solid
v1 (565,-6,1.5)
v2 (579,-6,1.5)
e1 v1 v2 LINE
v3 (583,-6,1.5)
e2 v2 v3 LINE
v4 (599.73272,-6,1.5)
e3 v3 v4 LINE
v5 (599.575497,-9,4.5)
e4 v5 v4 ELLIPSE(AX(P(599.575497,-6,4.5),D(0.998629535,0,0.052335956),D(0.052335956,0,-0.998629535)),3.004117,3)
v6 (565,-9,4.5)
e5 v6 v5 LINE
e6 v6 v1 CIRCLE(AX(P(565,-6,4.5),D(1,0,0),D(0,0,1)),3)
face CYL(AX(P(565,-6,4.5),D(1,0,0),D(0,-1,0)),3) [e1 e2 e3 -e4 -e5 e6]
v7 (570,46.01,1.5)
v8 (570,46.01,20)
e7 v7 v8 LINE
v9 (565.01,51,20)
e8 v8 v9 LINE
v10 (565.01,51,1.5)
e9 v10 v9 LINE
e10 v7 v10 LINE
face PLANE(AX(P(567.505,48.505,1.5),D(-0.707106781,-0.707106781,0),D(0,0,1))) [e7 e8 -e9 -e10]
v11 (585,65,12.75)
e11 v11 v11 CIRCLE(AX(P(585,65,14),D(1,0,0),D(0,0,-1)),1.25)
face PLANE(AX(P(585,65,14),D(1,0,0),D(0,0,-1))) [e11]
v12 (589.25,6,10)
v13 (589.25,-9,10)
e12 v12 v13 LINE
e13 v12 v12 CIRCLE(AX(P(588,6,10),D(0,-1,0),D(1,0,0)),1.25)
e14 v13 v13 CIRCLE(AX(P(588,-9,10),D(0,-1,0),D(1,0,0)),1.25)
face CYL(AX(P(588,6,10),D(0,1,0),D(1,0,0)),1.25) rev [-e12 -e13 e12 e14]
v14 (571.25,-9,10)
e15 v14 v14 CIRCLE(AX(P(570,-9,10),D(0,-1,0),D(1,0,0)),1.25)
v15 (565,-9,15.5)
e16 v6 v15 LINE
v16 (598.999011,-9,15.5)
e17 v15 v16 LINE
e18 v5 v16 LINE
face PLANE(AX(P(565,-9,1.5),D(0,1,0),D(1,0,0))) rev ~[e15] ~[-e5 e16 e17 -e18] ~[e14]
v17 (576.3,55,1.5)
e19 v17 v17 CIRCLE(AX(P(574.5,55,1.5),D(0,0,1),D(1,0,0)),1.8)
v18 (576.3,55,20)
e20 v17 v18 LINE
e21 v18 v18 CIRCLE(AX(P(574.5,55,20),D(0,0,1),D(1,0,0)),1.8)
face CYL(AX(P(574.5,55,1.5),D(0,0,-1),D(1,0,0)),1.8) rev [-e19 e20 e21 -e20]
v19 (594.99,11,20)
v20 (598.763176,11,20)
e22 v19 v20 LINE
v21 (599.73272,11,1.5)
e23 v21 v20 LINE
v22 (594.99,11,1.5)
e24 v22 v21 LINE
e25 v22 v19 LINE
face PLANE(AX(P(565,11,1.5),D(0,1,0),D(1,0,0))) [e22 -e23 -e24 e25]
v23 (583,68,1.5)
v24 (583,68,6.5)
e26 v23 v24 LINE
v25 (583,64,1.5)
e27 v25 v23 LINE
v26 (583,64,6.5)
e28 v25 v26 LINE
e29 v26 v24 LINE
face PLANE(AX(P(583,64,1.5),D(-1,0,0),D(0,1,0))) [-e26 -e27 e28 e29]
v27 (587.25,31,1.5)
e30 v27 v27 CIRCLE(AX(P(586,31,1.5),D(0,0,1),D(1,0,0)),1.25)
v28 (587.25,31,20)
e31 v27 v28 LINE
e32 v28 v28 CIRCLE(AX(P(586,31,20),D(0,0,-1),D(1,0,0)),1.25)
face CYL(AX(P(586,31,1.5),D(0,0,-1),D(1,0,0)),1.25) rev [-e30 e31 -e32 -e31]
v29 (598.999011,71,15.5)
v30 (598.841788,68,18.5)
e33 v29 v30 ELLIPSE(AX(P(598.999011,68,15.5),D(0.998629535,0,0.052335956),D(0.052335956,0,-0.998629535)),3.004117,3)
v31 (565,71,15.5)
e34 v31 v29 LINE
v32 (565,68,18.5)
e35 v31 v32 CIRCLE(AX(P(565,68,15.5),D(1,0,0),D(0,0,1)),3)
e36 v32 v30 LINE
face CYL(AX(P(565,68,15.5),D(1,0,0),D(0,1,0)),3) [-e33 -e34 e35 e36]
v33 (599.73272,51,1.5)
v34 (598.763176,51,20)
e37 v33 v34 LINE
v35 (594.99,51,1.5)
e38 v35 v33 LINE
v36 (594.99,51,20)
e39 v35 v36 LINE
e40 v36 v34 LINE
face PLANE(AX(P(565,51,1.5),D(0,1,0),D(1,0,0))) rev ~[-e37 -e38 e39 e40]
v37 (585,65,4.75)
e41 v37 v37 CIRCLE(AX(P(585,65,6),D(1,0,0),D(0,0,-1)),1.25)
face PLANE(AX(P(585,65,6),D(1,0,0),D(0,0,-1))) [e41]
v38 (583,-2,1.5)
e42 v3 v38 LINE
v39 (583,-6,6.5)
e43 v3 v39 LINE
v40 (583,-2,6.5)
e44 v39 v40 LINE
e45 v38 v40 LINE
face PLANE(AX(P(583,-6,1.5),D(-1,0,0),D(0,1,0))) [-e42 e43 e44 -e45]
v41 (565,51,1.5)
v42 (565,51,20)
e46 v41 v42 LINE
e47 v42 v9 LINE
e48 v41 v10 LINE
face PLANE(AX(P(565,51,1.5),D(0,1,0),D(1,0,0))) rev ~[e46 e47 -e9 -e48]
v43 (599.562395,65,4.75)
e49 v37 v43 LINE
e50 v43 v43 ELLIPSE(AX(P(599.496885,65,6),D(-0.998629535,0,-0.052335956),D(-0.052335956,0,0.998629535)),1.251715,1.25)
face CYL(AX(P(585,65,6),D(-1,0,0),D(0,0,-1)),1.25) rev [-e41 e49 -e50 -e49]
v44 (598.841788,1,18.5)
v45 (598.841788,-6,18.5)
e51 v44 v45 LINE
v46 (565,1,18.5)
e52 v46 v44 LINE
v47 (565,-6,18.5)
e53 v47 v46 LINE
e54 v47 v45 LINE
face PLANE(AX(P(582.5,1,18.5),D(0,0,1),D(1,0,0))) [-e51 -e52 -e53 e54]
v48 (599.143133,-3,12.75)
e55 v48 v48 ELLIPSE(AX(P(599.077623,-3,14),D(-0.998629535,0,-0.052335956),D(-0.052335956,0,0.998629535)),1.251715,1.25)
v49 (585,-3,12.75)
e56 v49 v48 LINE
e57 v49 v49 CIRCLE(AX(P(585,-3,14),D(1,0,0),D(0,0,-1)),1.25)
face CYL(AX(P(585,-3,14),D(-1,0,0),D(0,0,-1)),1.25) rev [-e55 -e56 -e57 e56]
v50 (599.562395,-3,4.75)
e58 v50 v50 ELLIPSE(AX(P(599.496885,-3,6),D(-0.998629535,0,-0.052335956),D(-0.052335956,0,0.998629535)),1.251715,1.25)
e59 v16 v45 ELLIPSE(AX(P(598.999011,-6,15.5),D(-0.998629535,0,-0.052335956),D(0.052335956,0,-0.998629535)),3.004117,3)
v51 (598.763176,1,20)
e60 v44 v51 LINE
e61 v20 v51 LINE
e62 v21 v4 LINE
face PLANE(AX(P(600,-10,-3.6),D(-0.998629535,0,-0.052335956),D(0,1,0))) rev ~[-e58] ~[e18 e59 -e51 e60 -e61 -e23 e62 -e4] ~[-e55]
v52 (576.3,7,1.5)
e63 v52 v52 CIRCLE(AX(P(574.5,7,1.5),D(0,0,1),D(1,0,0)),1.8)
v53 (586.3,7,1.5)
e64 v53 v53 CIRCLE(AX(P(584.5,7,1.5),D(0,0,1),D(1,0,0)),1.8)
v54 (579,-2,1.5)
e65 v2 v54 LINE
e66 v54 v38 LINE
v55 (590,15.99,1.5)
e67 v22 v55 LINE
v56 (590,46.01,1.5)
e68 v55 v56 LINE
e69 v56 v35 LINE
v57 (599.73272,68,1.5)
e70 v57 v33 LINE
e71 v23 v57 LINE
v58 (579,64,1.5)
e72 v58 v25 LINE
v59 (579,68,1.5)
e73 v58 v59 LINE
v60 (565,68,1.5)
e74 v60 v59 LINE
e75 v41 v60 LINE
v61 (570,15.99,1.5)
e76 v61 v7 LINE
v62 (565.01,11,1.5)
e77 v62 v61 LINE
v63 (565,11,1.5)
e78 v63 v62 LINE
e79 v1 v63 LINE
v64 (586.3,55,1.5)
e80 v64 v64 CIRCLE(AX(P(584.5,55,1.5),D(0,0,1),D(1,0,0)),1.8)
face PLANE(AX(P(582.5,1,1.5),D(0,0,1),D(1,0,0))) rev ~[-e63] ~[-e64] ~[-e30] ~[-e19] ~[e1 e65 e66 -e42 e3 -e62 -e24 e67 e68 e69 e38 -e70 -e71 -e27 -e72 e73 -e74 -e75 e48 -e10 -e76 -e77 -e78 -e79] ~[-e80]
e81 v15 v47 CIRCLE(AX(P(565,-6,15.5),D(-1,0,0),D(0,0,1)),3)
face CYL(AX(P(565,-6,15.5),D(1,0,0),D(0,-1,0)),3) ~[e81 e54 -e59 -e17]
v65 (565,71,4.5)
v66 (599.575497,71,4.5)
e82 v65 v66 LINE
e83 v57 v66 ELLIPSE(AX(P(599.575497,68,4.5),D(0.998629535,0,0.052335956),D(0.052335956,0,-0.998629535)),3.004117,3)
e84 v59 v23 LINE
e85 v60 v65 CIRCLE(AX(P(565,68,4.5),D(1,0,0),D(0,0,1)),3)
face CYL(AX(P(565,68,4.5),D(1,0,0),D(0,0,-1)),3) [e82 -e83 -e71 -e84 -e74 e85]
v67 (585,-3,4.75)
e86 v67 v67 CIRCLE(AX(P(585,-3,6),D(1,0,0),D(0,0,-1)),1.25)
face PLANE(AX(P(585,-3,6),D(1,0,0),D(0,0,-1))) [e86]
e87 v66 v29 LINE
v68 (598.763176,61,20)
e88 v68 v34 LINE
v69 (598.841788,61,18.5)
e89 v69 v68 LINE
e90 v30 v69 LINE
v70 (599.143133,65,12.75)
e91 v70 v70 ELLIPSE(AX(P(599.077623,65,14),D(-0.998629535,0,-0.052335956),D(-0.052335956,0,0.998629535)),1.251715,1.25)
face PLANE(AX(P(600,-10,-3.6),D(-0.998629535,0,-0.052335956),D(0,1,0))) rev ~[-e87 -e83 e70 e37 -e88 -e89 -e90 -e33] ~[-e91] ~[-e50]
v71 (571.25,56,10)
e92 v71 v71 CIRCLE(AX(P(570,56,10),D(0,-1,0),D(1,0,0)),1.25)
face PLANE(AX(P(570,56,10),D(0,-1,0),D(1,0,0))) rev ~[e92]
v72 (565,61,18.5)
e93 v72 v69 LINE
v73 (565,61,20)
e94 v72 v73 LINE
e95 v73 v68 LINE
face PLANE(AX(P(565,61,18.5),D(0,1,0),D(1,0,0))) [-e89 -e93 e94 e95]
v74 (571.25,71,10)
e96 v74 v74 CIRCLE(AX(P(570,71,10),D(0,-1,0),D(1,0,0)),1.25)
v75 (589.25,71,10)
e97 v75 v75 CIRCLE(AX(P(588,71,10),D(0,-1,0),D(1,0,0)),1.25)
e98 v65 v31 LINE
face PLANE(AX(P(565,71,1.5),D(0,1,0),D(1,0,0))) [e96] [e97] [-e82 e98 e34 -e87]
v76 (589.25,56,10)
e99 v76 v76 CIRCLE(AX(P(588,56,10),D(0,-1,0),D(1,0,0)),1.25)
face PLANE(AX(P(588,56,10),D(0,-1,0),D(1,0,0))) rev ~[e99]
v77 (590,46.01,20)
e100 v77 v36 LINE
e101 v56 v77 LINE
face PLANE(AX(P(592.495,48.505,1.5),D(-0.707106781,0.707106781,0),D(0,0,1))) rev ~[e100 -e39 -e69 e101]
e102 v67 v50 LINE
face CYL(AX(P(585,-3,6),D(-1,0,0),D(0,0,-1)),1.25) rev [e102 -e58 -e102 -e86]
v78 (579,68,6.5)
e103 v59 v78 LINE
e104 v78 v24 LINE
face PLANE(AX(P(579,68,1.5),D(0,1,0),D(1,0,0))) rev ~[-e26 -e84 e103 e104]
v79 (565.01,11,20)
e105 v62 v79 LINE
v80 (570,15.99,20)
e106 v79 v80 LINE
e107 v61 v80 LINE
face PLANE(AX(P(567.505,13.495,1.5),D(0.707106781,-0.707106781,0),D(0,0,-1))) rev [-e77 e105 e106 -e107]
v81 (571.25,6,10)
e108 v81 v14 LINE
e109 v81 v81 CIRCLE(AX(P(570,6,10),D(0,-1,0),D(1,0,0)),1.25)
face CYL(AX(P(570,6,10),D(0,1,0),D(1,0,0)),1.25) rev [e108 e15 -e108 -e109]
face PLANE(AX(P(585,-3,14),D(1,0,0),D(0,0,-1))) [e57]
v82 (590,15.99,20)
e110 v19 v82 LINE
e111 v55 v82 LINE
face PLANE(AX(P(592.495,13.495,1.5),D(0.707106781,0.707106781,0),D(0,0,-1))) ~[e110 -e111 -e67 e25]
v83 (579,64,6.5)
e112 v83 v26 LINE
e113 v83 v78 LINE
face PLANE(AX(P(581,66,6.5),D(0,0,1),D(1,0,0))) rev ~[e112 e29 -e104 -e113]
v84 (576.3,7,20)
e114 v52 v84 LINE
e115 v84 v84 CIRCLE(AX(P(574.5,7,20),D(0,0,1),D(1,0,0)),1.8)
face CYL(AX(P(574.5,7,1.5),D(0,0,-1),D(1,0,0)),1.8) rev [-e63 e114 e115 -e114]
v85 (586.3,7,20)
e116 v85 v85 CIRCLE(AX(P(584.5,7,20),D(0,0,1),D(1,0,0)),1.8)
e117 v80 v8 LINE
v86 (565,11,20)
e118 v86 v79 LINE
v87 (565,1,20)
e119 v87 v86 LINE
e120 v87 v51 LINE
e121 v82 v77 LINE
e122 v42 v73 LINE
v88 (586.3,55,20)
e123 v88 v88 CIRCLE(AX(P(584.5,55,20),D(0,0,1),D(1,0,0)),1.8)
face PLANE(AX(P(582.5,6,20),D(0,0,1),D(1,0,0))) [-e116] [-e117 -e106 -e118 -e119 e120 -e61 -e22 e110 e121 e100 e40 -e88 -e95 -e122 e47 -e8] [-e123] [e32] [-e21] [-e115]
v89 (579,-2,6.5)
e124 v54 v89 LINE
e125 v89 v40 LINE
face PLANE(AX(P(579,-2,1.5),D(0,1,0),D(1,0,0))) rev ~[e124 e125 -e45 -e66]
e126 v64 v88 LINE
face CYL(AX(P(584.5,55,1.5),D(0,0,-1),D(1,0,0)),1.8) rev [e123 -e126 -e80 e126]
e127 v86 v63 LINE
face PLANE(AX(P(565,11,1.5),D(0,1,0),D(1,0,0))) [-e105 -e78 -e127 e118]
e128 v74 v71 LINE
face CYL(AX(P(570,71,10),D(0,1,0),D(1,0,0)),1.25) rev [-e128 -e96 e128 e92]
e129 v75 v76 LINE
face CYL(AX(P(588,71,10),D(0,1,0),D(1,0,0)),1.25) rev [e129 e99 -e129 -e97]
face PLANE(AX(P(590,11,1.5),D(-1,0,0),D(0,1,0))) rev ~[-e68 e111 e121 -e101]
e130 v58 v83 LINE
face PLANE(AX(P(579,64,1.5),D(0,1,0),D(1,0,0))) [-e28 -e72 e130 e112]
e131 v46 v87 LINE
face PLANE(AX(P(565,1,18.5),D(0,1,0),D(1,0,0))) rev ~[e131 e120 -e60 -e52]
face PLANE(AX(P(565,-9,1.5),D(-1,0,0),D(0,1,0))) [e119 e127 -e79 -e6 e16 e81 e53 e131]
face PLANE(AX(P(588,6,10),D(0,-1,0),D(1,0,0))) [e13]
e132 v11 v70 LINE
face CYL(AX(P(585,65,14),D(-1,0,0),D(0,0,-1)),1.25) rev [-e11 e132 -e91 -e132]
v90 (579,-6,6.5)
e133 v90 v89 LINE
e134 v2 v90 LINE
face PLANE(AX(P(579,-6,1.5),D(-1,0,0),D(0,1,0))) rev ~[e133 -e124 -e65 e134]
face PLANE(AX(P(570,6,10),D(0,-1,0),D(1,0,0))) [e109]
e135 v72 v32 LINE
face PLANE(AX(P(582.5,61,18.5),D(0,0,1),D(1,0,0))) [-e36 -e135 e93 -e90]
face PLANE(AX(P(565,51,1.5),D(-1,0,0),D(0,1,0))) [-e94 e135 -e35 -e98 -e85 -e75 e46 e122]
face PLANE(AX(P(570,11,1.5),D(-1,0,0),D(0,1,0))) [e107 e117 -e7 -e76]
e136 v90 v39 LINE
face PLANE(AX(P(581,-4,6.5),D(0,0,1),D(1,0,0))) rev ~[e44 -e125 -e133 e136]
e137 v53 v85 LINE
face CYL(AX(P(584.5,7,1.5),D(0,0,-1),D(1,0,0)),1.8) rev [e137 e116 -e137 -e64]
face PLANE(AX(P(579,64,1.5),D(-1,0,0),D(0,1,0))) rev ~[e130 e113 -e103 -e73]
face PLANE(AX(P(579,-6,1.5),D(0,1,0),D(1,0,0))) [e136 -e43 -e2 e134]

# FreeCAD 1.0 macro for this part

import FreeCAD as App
import Part
import Sketcher

V = App.Vector


def edges_at(feature, points):
    """Names of the edges that pass closest to the given points."""
    edges = feature.Shape.Edges
    near = lambda p: min(range(len(edges)), key=lambda i: edges[i].distToShape(Part.Vertex(*p))[0])
    return sorted({f"Edge{near(p) + 1}" for p in points})

doc = App.newDocument("Part")
params = doc.addObject("Spreadsheet::Sheet", "Params")
for row, (alias, value) in enumerate([
    ("sketch1_diameter", "2.5 mm"),
    ("pad1_length", "20 mm"),
    ("sketch2_width", "4 mm"),
    ("pad2_length", "5 mm"),
    ("sketch3_width", "4 mm"),
    ("pad3_length", "5 mm"),
    ("sketch4_diameter", "2.5 mm"),
    ("pad4_length", "15 mm"),
    ("sketch5_diameter", "2.5 mm"),
    ("pad5_length", "15 mm"),
    ("sketch6_diameter", "2.5 mm"),
    ("pad6_length", "15 mm"),
    ("sketch7_diameter", "2.5 mm"),
    ("pad7_length", "15 mm"),
    ("sketch8_diameter", "3.6 mm"),
    ("pad8_length", "18.5 mm"),
    ("sketch9_diameter", "3.6 mm"),
    ("pad9_length", "18.5 mm"),
    ("sketch10_diameter", "3.6 mm"),
    ("pad10_length", "18.5 mm"),
    ("sketch11_diameter", "3.6 mm"),
    ("pad11_length", "18.5 mm"),
    ("sketch12_diameter", "2.5 mm"),
    ("pad12_length", "15 mm"),
    ("sketch13_diameter", "2.5 mm"),
    ("pad13_length", "15 mm"),
    ("sketch14_diameter", "2.5 mm"),
    ("pad14_length", "15 mm"),
    ("sketch15_diameter", "2.5 mm"),
    ("pad15_length", "15 mm"),
    ("sketch16_width", "10 mm"),
    ("sketch16_height", "82 mm"),
    ("pad16_length", "32 mm"),
    ("sketch17_width", "35 mm"),
    ("sketch17_height", "10 mm"),
    ("pad17_length", "1.5 mm"),
    ("sketch18_width", "35 mm"),
    ("sketch18_height", "20 mm"),
    ("pad18_length", "17 mm"),
    ("sketch19_width", "35 mm"),
    ("sketch19_height", "20 mm"),
    ("pad19_length", "17 mm"),
    ("sketch20_width", "20 mm"),
    ("sketch20_height", "40 mm"),
    ("pad20_length", "18.5 mm"),
    ("sketch21_width", "35 mm"),
    ("sketch21_height", "10 mm"),
    ("pad21_length", "1.5 mm"),
    ("fillet_radius", "3 mm"),
    ("chamfer_size", "4.99 mm"),
], start=1):
    params.set(f"A{row}", alias)
    params.set(f"B{row}", "=" + value)
    params.setAlias(f"B{row}", alias)

body = doc.addObject("PartDesign::Body", "Body")

# Sketch on XY plane
sketch1 = body.newObject("Sketcher::SketchObject", "Sketch")
sketch1.AttachmentSupport = (doc.getObject("XY_Plane"), [""])
sketch1.MapMode = "FlatFace"
sketch1.AttachmentOffset = App.Placement(V(0, 0, 1.5), App.Rotation())
sketch1.addGeometry(Part.Circle(V(586, 31, 0), V(0, 0, 1), 1.2), False)
sketch1.addConstraint(Sketcher.Constraint("Diameter", 0, 2.5))
sketch1.addConstraint(Sketcher.Constraint("DistanceX", -1, 1, 0, 3, 586.0))
sketch1.addConstraint(Sketcher.Constraint("DistanceY", -1, 1, 0, 3, 31.0))
sketch1.setExpression("Constraints[0]", "Params.sketch1_diameter")
pad1 = body.newObject("PartDesign::Pad", "Pad")
pad1.Profile = sketch1
pad1.setExpression("Length", "Params.pad1_length")
body2 = doc.addObject("PartDesign::Body", "Body001")

# Sketch on XY plane
sketch2 = body2.newObject("Sketcher::SketchObject", "Sketch001")
sketch2.AttachmentSupport = (doc.getObject("XY_Plane001"), [""])
sketch2.MapMode = "FlatFace"
sketch2.AttachmentOffset = App.Placement(V(0, 0, 1.5), App.Rotation())
sketch2.addGeometry(Part.LineSegment(V(579, -2, 0), V(579, -6, 0)), False)
sketch2.addGeometry(Part.LineSegment(V(579, -6, 0), V(583, -6, 0)), False)
sketch2.addGeometry(Part.LineSegment(V(583, -6, 0), V(583, -2, 0)), False)
sketch2.addGeometry(Part.LineSegment(V(583, -2, 0), V(579, -2, 0)), False)
sketch2.addConstraint(Sketcher.Constraint("Coincident", 0, 2, 1, 1))
sketch2.addConstraint(Sketcher.Constraint("Coincident", 1, 2, 2, 1))
sketch2.addConstraint(Sketcher.Constraint("Coincident", 2, 2, 3, 1))
sketch2.addConstraint(Sketcher.Constraint("Coincident", 3, 2, 0, 1))
sketch2.addConstraint(Sketcher.Constraint("Vertical", 0))
sketch2.addConstraint(Sketcher.Constraint("Horizontal", 1))
sketch2.addConstraint(Sketcher.Constraint("Vertical", 2))
sketch2.addConstraint(Sketcher.Constraint("Horizontal", 3))
sketch2.addConstraint(Sketcher.Constraint("Equal", 3, 0))
sketch2.addConstraint(Sketcher.Constraint("DistanceX", 1, 1, 1, 2, 4.0))
sketch2.addConstraint(Sketcher.Constraint("DistanceX", -1, 1, 0, 2, 579.0))
sketch2.addConstraint(Sketcher.Constraint("DistanceY", 0, 2, -1, 1, 6.0))
sketch2.setExpression("Constraints[9]", "Params.sketch2_width")
pad2 = body2.newObject("PartDesign::Pad", "Pad001")
pad2.Profile = sketch2
pad2.setExpression("Length", "Params.pad2_length")
body3 = doc.addObject("PartDesign::Body", "Body002")
body3.AllowCompound = True

# Sketch on XY plane
sketch3 = body3.newObject("Sketcher::SketchObject", "Sketch002")
sketch3.AttachmentSupport = (doc.getObject("XY_Plane002"), [""])
sketch3.MapMode = "FlatFace"
sketch3.AttachmentOffset = App.Placement(V(0, 0, 1.5), App.Rotation())
sketch3.addGeometry(Part.LineSegment(V(579, 68, 0), V(579, 64, 0)), False)
sketch3.addGeometry(Part.LineSegment(V(579, 64, 0), V(583, 64, 0)), False)
sketch3.addGeometry(Part.LineSegment(V(583, 64, 0), V(583, 68, 0)), False)
sketch3.addGeometry(Part.LineSegment(V(583, 68, 0), V(579, 68, 0)), False)
sketch3.addConstraint(Sketcher.Constraint("Coincident", 0, 2, 1, 1))
sketch3.addConstraint(Sketcher.Constraint("Coincident", 1, 2, 2, 1))
sketch3.addConstraint(Sketcher.Constraint("Coincident", 2, 2, 3, 1))
sketch3.addConstraint(Sketcher.Constraint("Coincident", 3, 2, 0, 1))
sketch3.addConstraint(Sketcher.Constraint("Vertical", 0))
sketch3.addConstraint(Sketcher.Constraint("Horizontal", 1))
sketch3.addConstraint(Sketcher.Constraint("Vertical", 2))
sketch3.addConstraint(Sketcher.Constraint("Horizontal", 3))
sketch3.addConstraint(Sketcher.Constraint("Equal", 3, 0))
sketch3.addConstraint(Sketcher.Constraint("DistanceX", 1, 1, 1, 2, 4.0))
sketch3.addConstraint(Sketcher.Constraint("DistanceX", -1, 1, 0, 2, 579.0))
sketch3.addConstraint(Sketcher.Constraint("DistanceY", -1, 1, 0, 2, 64.0))
sketch3.setExpression("Constraints[9]", "Params.sketch3_width")
pad3 = body3.newObject("PartDesign::Pad", "Pad002")
pad3.Profile = sketch3
pad3.setExpression("Length", "Params.pad3_length")
doc.recompute()

boolean = body3.newObject("PartDesign::Boolean", "Boolean")
boolean.Type = "Fuse"
boolean.addObjects([body2])
body4 = doc.addObject("PartDesign::Body", "Body003")

# Sketch on YZ plane
sketch4 = body4.newObject("Sketcher::SketchObject", "Sketch003")
sketch4.AttachmentSupport = (doc.getObject("YZ_Plane003"), [""])
sketch4.MapMode = "FlatFace"
sketch4.AttachmentOffset = App.Placement(V(0, 0, 585), App.Rotation())
sketch4.addGeometry(Part.Circle(V(7, 6, 0), V(0, 0, 1), 1.2), False)
sketch4.addConstraint(Sketcher.Constraint("Diameter", 0, 2.5))
sketch4.addConstraint(Sketcher.Constraint("DistanceX", -1, 1, 0, 3, 7.0))
sketch4.addConstraint(Sketcher.Constraint("DistanceY", -1, 1, 0, 3, 6.0))
sketch4.setExpression("Constraints[0]", "Params.sketch4_diameter")
pad4 = body4.newObject("PartDesign::Pad", "Pad003")
pad4.Profile = sketch4
pad4.setExpression("Length", "Params.pad4_length")
body5 = doc.addObject("PartDesign::Body", "Body004")
body5.AllowCompound = True

# Sketch on YZ plane
sketch5 = body5.newObject("Sketcher::SketchObject", "Sketch004")
sketch5.AttachmentSupport = (doc.getObject("YZ_Plane004"), [""])
sketch5.MapMode = "FlatFace"
sketch5.AttachmentOffset = App.Placement(V(0, 0, 585), App.Rotation())
sketch5.addGeometry(Part.Circle(V(7, 14, 0), V(0, 0, 1), 1.2), False)
sketch5.addConstraint(Sketcher.Constraint("Diameter", 0, 2.5))
sketch5.addConstraint(Sketcher.Constraint("DistanceX", -1, 1, 0, 3, 7.0))
sketch5.addConstraint(Sketcher.Constraint("DistanceY", -1, 1, 0, 3, 14.0))
sketch5.setExpression("Constraints[0]", "Params.sketch5_diameter")
pad5 = body5.newObject("PartDesign::Pad", "Pad004")
pad5.Profile = sketch5
pad5.setExpression("Length", "Params.pad5_length")
doc.recompute()

boolean2 = body5.newObject("PartDesign::Boolean", "Boolean001")
boolean2.Type = "Fuse"
boolean2.addObjects([body4])
body6 = doc.addObject("PartDesign::Body", "Body005")
body6.AllowCompound = True
doc.recompute()

body5.Placement = App.Placement(V(0, 58, 0), App.Rotation(V(0, 0, 1), 0))
boolean3 = body6.newObject("PartDesign::Boolean", "Boolean002")
boolean3.Type = "Fuse"
boolean3.addObjects([body5])
body7 = doc.addObject("PartDesign::Body", "Body006")

# Sketch on YZ plane
sketch6 = body7.newObject("Sketcher::SketchObject", "Sketch005")
sketch6.AttachmentSupport = (doc.getObject("YZ_Plane006"), [""])
sketch6.MapMode = "FlatFace"
sketch6.AttachmentOffset = App.Placement(V(0, 0, 585), App.Rotation())
sketch6.addGeometry(Part.Circle(V(7, 6, 0), V(0, 0, 1), 1.2), False)
sketch6.addConstraint(Sketcher.Constraint("Diameter", 0, 2.5))
sketch6.addConstraint(Sketcher.Constraint("DistanceX", -1, 1, 0, 3, 7.0))
sketch6.addConstraint(Sketcher.Constraint("DistanceY", -1, 1, 0, 3, 6.0))
sketch6.setExpression("Constraints[0]", "Params.sketch6_diameter")
pad6 = body7.newObject("PartDesign::Pad", "Pad005")
pad6.Profile = sketch6
pad6.setExpression("Length", "Params.pad6_length")
body8 = doc.addObject("PartDesign::Body", "Body007")
body8.AllowCompound = True

# Sketch on YZ plane
sketch7 = body8.newObject("Sketcher::SketchObject", "Sketch006")
sketch7.AttachmentSupport = (doc.getObject("YZ_Plane007"), [""])
sketch7.MapMode = "FlatFace"
sketch7.AttachmentOffset = App.Placement(V(0, 0, 585), App.Rotation())
sketch7.addGeometry(Part.Circle(V(7, 14, 0), V(0, 0, 1), 1.2), False)
sketch7.addConstraint(Sketcher.Constraint("Diameter", 0, 2.5))
sketch7.addConstraint(Sketcher.Constraint("DistanceX", -1, 1, 0, 3, 7.0))
sketch7.addConstraint(Sketcher.Constraint("DistanceY", -1, 1, 0, 3, 14.0))
sketch7.setExpression("Constraints[0]", "Params.sketch7_diameter")
pad7 = body8.newObject("PartDesign::Pad", "Pad006")
pad7.Profile = sketch7
pad7.setExpression("Length", "Params.pad7_length")
doc.recompute()

boolean4 = body8.newObject("PartDesign::Boolean", "Boolean003")
boolean4.Type = "Fuse"
boolean4.addObjects([body7])
body9 = doc.addObject("PartDesign::Body", "Body008")
body9.AllowCompound = True
doc.recompute()

body8.Placement = App.Placement(V(0, -10, 0), App.Rotation(V(0, 0, 1), 0))
boolean5 = body9.newObject("PartDesign::Boolean", "Boolean004")
boolean5.Type = "Fuse"
boolean5.addObjects([body8])
doc.recompute()

boolean6 = body9.newObject("PartDesign::Boolean", "Boolean005")
boolean6.Type = "Fuse"
boolean6.addObjects([body6])
body10 = doc.addObject("PartDesign::Body", "Body009")

# Sketch on XY plane
sketch8 = body10.newObject("Sketcher::SketchObject", "Sketch007")
sketch8.AttachmentSupport = (doc.getObject("XY_Plane009"), [""])
sketch8.MapMode = "FlatFace"
sketch8.AttachmentOffset = App.Placement(V(0, 0, 10.5), App.Rotation())
sketch8.addGeometry(Part.Circle(V(584, 7, 0), V(0, 0, 1), 1.8), False)
sketch8.addConstraint(Sketcher.Constraint("Diameter", 0, 3.6))
sketch8.addConstraint(Sketcher.Constraint("DistanceX", -1, 1, 0, 3, 584.0))
sketch8.addConstraint(Sketcher.Constraint("DistanceY", -1, 1, 0, 3, 7.0))
sketch8.setExpression("Constraints[0]", "Params.sketch8_diameter")
pad8 = body10.newObject("PartDesign::Pad", "Pad007")
pad8.Profile = sketch8
pad8.setExpression("Length", "Params.pad8_length")
body11 = doc.addObject("PartDesign::Body", "Body010")
body11.AllowCompound = True

# Sketch on XY plane
sketch9 = body11.newObject("Sketcher::SketchObject", "Sketch008")
sketch9.AttachmentSupport = (doc.getObject("XY_Plane010"), [""])
sketch9.MapMode = "FlatFace"
sketch9.AttachmentOffset = App.Placement(V(0, 0, 10.5), App.Rotation())
sketch9.addGeometry(Part.Circle(V(584, 55, 0), V(0, 0, 1), 1.8), False)
sketch9.addConstraint(Sketcher.Constraint("Diameter", 0, 3.6))
sketch9.addConstraint(Sketcher.Constraint("DistanceX", -1, 1, 0, 3, 584.0))
sketch9.addConstraint(Sketcher.Constraint("DistanceY", -1, 1, 0, 3, 55.0))
sketch9.setExpression("Constraints[0]", "Params.sketch9_diameter")
pad9 = body11.newObject("PartDesign::Pad", "Pad008")
pad9.Profile = sketch9
pad9.setExpression("Length", "Params.pad9_length")
doc.recompute()

boolean7 = body11.newObject("PartDesign::Boolean", "Boolean006")
boolean7.Type = "Fuse"
boolean7.addObjects([body10])
body12 = doc.addObject("PartDesign::Body", "Body011")
body12.AllowCompound = True
doc.recompute()

body11.Placement = App.Placement(V(-9.5, 0, -9), App.Rotation(V(0, 0, 1), 0))
boolean8 = body12.newObject("PartDesign::Boolean", "Boolean007")
boolean8.Type = "Fuse"
boolean8.addObjects([body11])
body13 = doc.addObject("PartDesign::Body", "Body012")

# Sketch on XY plane
sketch10 = body13.newObject("Sketcher::SketchObject", "Sketch009")
sketch10.AttachmentSupport = (doc.getObject("XY_Plane012"), [""])
sketch10.MapMode = "FlatFace"
sketch10.AttachmentOffset = App.Placement(V(0, 0, 10.5), App.Rotation())
sketch10.addGeometry(Part.Circle(V(584, 7, 0), V(0, 0, 1), 1.8), False)
sketch10.addConstraint(Sketcher.Constraint("Diameter", 0, 3.6))
sketch10.addConstraint(Sketcher.Constraint("DistanceX", -1, 1, 0, 3, 584.0))
sketch10.addConstraint(Sketcher.Constraint("DistanceY", -1, 1, 0, 3, 7.0))
sketch10.setExpression("Constraints[0]", "Params.sketch10_diameter")
pad10 = body13.newObject("PartDesign::Pad", "Pad009")
pad10.Profile = sketch10
pad10.setExpression("Length", "Params.pad10_length")
body14 = doc.addObject("PartDesign::Body", "Body013")
body14.AllowCompound = True

# Sketch on XY plane
sketch11 = body14.newObject("Sketcher::SketchObject", "Sketch010")
sketch11.AttachmentSupport = (doc.getObject("XY_Plane013"), [""])
sketch11.MapMode = "FlatFace"
sketch11.AttachmentOffset = App.Placement(V(0, 0, 10.5), App.Rotation())
sketch11.addGeometry(Part.Circle(V(584, 55, 0), V(0, 0, 1), 1.8), False)
sketch11.addConstraint(Sketcher.Constraint("Diameter", 0, 3.6))
sketch11.addConstraint(Sketcher.Constraint("DistanceX", -1, 1, 0, 3, 584.0))
sketch11.addConstraint(Sketcher.Constraint("DistanceY", -1, 1, 0, 3, 55.0))
sketch11.setExpression("Constraints[0]", "Params.sketch11_diameter")
pad11 = body14.newObject("PartDesign::Pad", "Pad010")
pad11.Profile = sketch11
pad11.setExpression("Length", "Params.pad11_length")
doc.recompute()

boolean9 = body14.newObject("PartDesign::Boolean", "Boolean008")
boolean9.Type = "Fuse"
boolean9.addObjects([body13])
body15 = doc.addObject("PartDesign::Body", "Body014")
body15.AllowCompound = True
doc.recompute()

body14.Placement = App.Placement(V(0.5, 0, -9), App.Rotation(V(0, 0, 1), 0))
boolean10 = body15.newObject("PartDesign::Boolean", "Boolean009")
boolean10.Type = "Fuse"
boolean10.addObjects([body14])
doc.recompute()

boolean11 = body15.newObject("PartDesign::Boolean", "Boolean010")
boolean11.Type = "Fuse"
boolean11.addObjects([body12])
body16 = doc.addObject("PartDesign::Body", "Body015")

# Sketch on XZ plane
sketch12 = body16.newObject("Sketcher::SketchObject", "Sketch011")
sketch12.AttachmentSupport = (doc.getObject("XZ_Plane015"), [""])
sketch12.MapMode = "FlatFace"
sketch12.AttachmentOffset = App.Placement(V(0, 0, -71), App.Rotation())
sketch12.addGeometry(Part.Circle(V(588, 10, 0), V(0, 0, 1), 1.2), False)
sketch12.addConstraint(Sketcher.Constraint("Diameter", 0, 2.5))
sketch12.addConstraint(Sketcher.Constraint("DistanceX", -1, 1, 0, 3, 588.0))
sketch12.addConstraint(Sketcher.Constraint("DistanceY", -1, 1, 0, 3, 10.0))
sketch12.setExpression("Constraints[0]", "Params.sketch12_diameter")
pad12 = body16.newObject("PartDesign::Pad", "Pad011")
pad12.Profile = sketch12
pad12.setExpression("Length", "Params.pad12_length")
body17 = doc.addObject("PartDesign::Body", "Body016")
body17.AllowCompound = True

# Sketch on XZ plane
sketch13 = body17.newObject("Sketcher::SketchObject", "Sketch012")
sketch13.AttachmentSupport = (doc.getObject("XZ_Plane016"), [""])
sketch13.MapMode = "FlatFace"
sketch13.AttachmentOffset = App.Placement(V(0, 0, -6), App.Rotation())
sketch13.addGeometry(Part.Circle(V(588, 10, 0), V(0, 0, 1), 1.2), False)
sketch13.addConstraint(Sketcher.Constraint("Diameter", 0, 2.5))
sketch13.addConstraint(Sketcher.Constraint("DistanceX", -1, 1, 0, 3, 588.0))
sketch13.addConstraint(Sketcher.Constraint("DistanceY", -1, 1, 0, 3, 10.0))
sketch13.setExpression("Constraints[0]", "Params.sketch13_diameter")
pad13 = body17.newObject("PartDesign::Pad", "Pad012")
pad13.Profile = sketch13
pad13.setExpression("Length", "Params.pad13_length")
doc.recompute()

boolean12 = body17.newObject("PartDesign::Boolean", "Boolean011")
boolean12.Type = "Fuse"
boolean12.addObjects([body16])
body18 = doc.addObject("PartDesign::Body", "Body017")
body18.AllowCompound = True
doc.recompute()

body17.Placement = App.Placement(V(-18, 0, 0), App.Rotation(V(0, 0, 1), 0))
boolean13 = body18.newObject("PartDesign::Boolean", "Boolean012")
boolean13.Type = "Fuse"
boolean13.addObjects([body17])
body19 = doc.addObject("PartDesign::Body", "Body018")

# Sketch on XZ plane
sketch14 = body19.newObject("Sketcher::SketchObject", "Sketch013")
sketch14.AttachmentSupport = (doc.getObject("XZ_Plane018"), [""])
sketch14.MapMode = "FlatFace"
sketch14.AttachmentOffset = App.Placement(V(0, 0, -71), App.Rotation())
sketch14.addGeometry(Part.Circle(V(588, 10, 0), V(0, 0, 1), 1.2), False)
sketch14.addConstraint(Sketcher.Constraint("Diameter", 0, 2.5))
sketch14.addConstraint(Sketcher.Constraint("DistanceX", -1, 1, 0, 3, 588.0))
sketch14.addConstraint(Sketcher.Constraint("DistanceY", -1, 1, 0, 3, 10.0))
sketch14.setExpression("Constraints[0]", "Params.sketch14_diameter")
pad14 = body19.newObject("PartDesign::Pad", "Pad013")
pad14.Profile = sketch14
pad14.setExpression("Length", "Params.pad14_length")
body20 = doc.addObject("PartDesign::Body", "Body019")
body20.AllowCompound = True

# Sketch on XZ plane
sketch15 = body20.newObject("Sketcher::SketchObject", "Sketch014")
sketch15.AttachmentSupport = (doc.getObject("XZ_Plane019"), [""])
sketch15.MapMode = "FlatFace"
sketch15.AttachmentOffset = App.Placement(V(0, 0, -6), App.Rotation())
sketch15.addGeometry(Part.Circle(V(588, 10, 0), V(0, 0, 1), 1.2), False)
sketch15.addConstraint(Sketcher.Constraint("Diameter", 0, 2.5))
sketch15.addConstraint(Sketcher.Constraint("DistanceX", -1, 1, 0, 3, 588.0))
sketch15.addConstraint(Sketcher.Constraint("DistanceY", -1, 1, 0, 3, 10.0))
sketch15.setExpression("Constraints[0]", "Params.sketch15_diameter")
pad15 = body20.newObject("PartDesign::Pad", "Pad014")
pad15.Profile = sketch15
pad15.setExpression("Length", "Params.pad15_length")
doc.recompute()

boolean14 = body20.newObject("PartDesign::Boolean", "Boolean013")
boolean14.Type = "Fuse"
boolean14.addObjects([body19])
doc.recompute()

boolean15 = body20.newObject("PartDesign::Boolean", "Boolean014")
boolean15.Type = "Fuse"
boolean15.addObjects([body18])
body21 = doc.addObject("PartDesign::Body", "Body020")

# Sketch on XY plane
sketch16 = body21.newObject("Sketcher::SketchObject", "Sketch015")
sketch16.AttachmentSupport = (doc.getObject("XY_Plane020"), [""])
sketch16.MapMode = "FlatFace"
sketch16.addGeometry(Part.LineSegment(V(0, 82, 0), V(0, 0, 0)), False)
sketch16.addGeometry(Part.LineSegment(V(0, 0, 0), V(10, 0, 0)), False)
sketch16.addGeometry(Part.LineSegment(V(10, 0, 0), V(10, 82, 0)), False)
sketch16.addGeometry(Part.LineSegment(V(10, 82, 0), V(0, 82, 0)), False)
sketch16.addConstraint(Sketcher.Constraint("Coincident", 0, 2, 1, 1))
sketch16.addConstraint(Sketcher.Constraint("Coincident", 1, 2, 2, 1))
sketch16.addConstraint(Sketcher.Constraint("Coincident", 2, 2, 3, 1))
sketch16.addConstraint(Sketcher.Constraint("Coincident", 3, 2, 0, 1))
sketch16.addConstraint(Sketcher.Constraint("Vertical", 0))
sketch16.addConstraint(Sketcher.Constraint("Horizontal", 1))
sketch16.addConstraint(Sketcher.Constraint("Vertical", 2))
sketch16.addConstraint(Sketcher.Constraint("Horizontal", 3))
sketch16.addConstraint(Sketcher.Constraint("Coincident", 0, 2, -1, 1))
sketch16.addConstraint(Sketcher.Constraint("DistanceX", 1, 1, 1, 2, 10.0))
sketch16.addConstraint(Sketcher.Constraint("DistanceY", 0, 2, 0, 1, 82.0))
sketch16.setExpression("Constraints[9]", "Params.sketch16_width")
sketch16.setExpression("Constraints[10]", "Params.sketch16_height")
pad16 = body21.newObject("PartDesign::Pad", "Pad015")
pad16.Profile = sketch16
pad16.setExpression("Length", "Params.pad16_length")
body22 = doc.addObject("PartDesign::Body", "Body021")
doc.recompute()

body21.Placement = App.Placement(V(600, -10, -3.6), App.Rotation(V(0, -1, 0), 3))
boolean16 = body22.newObject("PartDesign::Boolean", "Boolean015")
boolean16.Type = "Fuse"
boolean16.addObjects([body21])
body23 = doc.addObject("PartDesign::Body", "Body022")

# Sketch on XY plane
sketch17 = body23.newObject("Sketcher::SketchObject", "Sketch016")
sketch17.AttachmentSupport = (doc.getObject("XY_Plane022"), [""])
sketch17.MapMode = "FlatFace"
sketch17.AttachmentOffset = App.Placement(V(0, 0, 18.5), App.Rotation())
sketch17.addGeometry(Part.LineSegment(V(565, 11, 0), V(565, 1, 0)), False)
sketch17.addGeometry(Part.LineSegment(V(565, 1, 0), V(600, 1, 0)), False)
sketch17.addGeometry(Part.LineSegment(V(600, 1, 0), V(600, 11, 0)), False)
sketch17.addGeometry(Part.LineSegment(V(600, 11, 0), V(565, 11, 0)), False)
sketch17.addConstraint(Sketcher.Constraint("Coincident", 0, 2, 1, 1))
sketch17.addConstraint(Sketcher.Constraint("Coincident", 1, 2, 2, 1))
sketch17.addConstraint(Sketcher.Constraint("Coincident", 2, 2, 3, 1))
sketch17.addConstraint(Sketcher.Constraint("Coincident", 3, 2, 0, 1))
sketch17.addConstraint(Sketcher.Constraint("Vertical", 0))
sketch17.addConstraint(Sketcher.Constraint("Horizontal", 1))
sketch17.addConstraint(Sketcher.Constraint("Vertical", 2))
sketch17.addConstraint(Sketcher.Constraint("Horizontal", 3))
sketch17.addConstraint(Sketcher.Constraint("DistanceX", 1, 1, 1, 2, 35.0))
sketch17.addConstraint(Sketcher.Constraint("DistanceY", 0, 2, 0, 1, 10.0))
sketch17.addConstraint(Sketcher.Constraint("DistanceX", -1, 1, 0, 2, 565.0))
sketch17.addConstraint(Sketcher.Constraint("DistanceY", -1, 1, 0, 2, 1.0))
sketch17.setExpression("Constraints[8]", "Params.sketch17_width")
sketch17.setExpression("Constraints[9]", "Params.sketch17_height")
pad17 = body23.newObject("PartDesign::Pad", "Pad016")
pad17.Profile = sketch17
pad17.setExpression("Length", "Params.pad17_length")
body24 = doc.addObject("PartDesign::Body", "Body023")

# Sketch on XY plane
sketch18 = body24.newObject("Sketcher::SketchObject", "Sketch017")
sketch18.AttachmentSupport = (doc.getObject("XY_Plane023"), [""])
sketch18.MapMode = "FlatFace"
sketch18.AttachmentOffset = App.Placement(V(0, 0, 1.5), App.Rotation())
sketch18.addGeometry(Part.LineSegment(V(565, 71, 0), V(565, 51, 0)), False)
sketch18.addGeometry(Part.LineSegment(V(565, 51, 0), V(600, 51, 0)), False)
sketch18.addGeometry(Part.LineSegment(V(600, 51, 0), V(600, 71, 0)), False)
sketch18.addGeometry(Part.LineSegment(V(600, 71, 0), V(565, 71, 0)), False)
sketch18.addConstraint(Sketcher.Constraint("Coincident", 0, 2, 1, 1))
sketch18.addConstraint(Sketcher.Constraint("Coincident", 1, 2, 2, 1))
sketch18.addConstraint(Sketcher.Constraint("Coincident", 2, 2, 3, 1))
sketch18.addConstraint(Sketcher.Constraint("Coincident", 3, 2, 0, 1))
sketch18.addConstraint(Sketcher.Constraint("Vertical", 0))
sketch18.addConstraint(Sketcher.Constraint("Horizontal", 1))
sketch18.addConstraint(Sketcher.Constraint("Vertical", 2))
sketch18.addConstraint(Sketcher.Constraint("Horizontal", 3))
sketch18.addConstraint(Sketcher.Constraint("DistanceX", 1, 1, 1, 2, 35.0))
sketch18.addConstraint(Sketcher.Constraint("DistanceY", 0, 2, 0, 1, 20.0))
sketch18.addConstraint(Sketcher.Constraint("DistanceX", -1, 1, 0, 2, 565.0))
sketch18.addConstraint(Sketcher.Constraint("DistanceY", -1, 1, 0, 2, 51.0))
sketch18.setExpression("Constraints[8]", "Params.sketch18_width")
sketch18.setExpression("Constraints[9]", "Params.sketch18_height")
pad18 = body24.newObject("PartDesign::Pad", "Pad017")
pad18.Profile = sketch18
pad18.setExpression("Length", "Params.pad18_length")
body25 = doc.addObject("PartDesign::Body", "Body024")

# Sketch on XY plane
sketch19 = body25.newObject("Sketcher::SketchObject", "Sketch018")
sketch19.AttachmentSupport = (doc.getObject("XY_Plane024"), [""])
sketch19.MapMode = "FlatFace"
sketch19.AttachmentOffset = App.Placement(V(0, 0, 1.5), App.Rotation())
sketch19.addGeometry(Part.LineSegment(V(565, 11, 0), V(565, -9, 0)), False)
sketch19.addGeometry(Part.LineSegment(V(565, -9, 0), V(600, -9, 0)), False)
sketch19.addGeometry(Part.LineSegment(V(600, -9, 0), V(600, 11, 0)), False)
sketch19.addGeometry(Part.LineSegment(V(600, 11, 0), V(565, 11, 0)), False)
sketch19.addConstraint(Sketcher.Constraint("Coincident", 0, 2, 1, 1))
sketch19.addConstraint(Sketcher.Constraint("Coincident", 1, 2, 2, 1))
sketch19.addConstraint(Sketcher.Constraint("Coincident", 2, 2, 3, 1))
sketch19.addConstraint(Sketcher.Constraint("Coincident", 3, 2, 0, 1))
sketch19.addConstraint(Sketcher.Constraint("Vertical", 0))
sketch19.addConstraint(Sketcher.Constraint("Horizontal", 1))
sketch19.addConstraint(Sketcher.Constraint("Vertical", 2))
sketch19.addConstraint(Sketcher.Constraint("Horizontal", 3))
sketch19.addConstraint(Sketcher.Constraint("DistanceX", 1, 1, 1, 2, 35.0))
sketch19.addConstraint(Sketcher.Constraint("DistanceY", 0, 2, 0, 1, 20.0))
sketch19.addConstraint(Sketcher.Constraint("DistanceX", -1, 1, 0, 2, 565.0))
sketch19.addConstraint(Sketcher.Constraint("DistanceY", 0, 2, -1, 1, 9.0))
sketch19.setExpression("Constraints[8]", "Params.sketch19_width")
sketch19.setExpression("Constraints[9]", "Params.sketch19_height")
pad19 = body25.newObject("PartDesign::Pad", "Pad018")
pad19.Profile = sketch19
pad19.setExpression("Length", "Params.pad19_length")
body26 = doc.addObject("PartDesign::Body", "Body025")

# Sketch on XY plane
sketch20 = body26.newObject("Sketcher::SketchObject", "Sketch019")
sketch20.AttachmentSupport = (doc.getObject("XY_Plane025"), [""])
sketch20.MapMode = "FlatFace"
sketch20.AttachmentOffset = App.Placement(V(0, 0, 1.5), App.Rotation())
sketch20.addGeometry(Part.LineSegment(V(570, 51, 0), V(570, 11, 0)), False)
sketch20.addGeometry(Part.LineSegment(V(570, 11, 0), V(590, 11, 0)), False)
sketch20.addGeometry(Part.LineSegment(V(590, 11, 0), V(590, 51, 0)), False)
sketch20.addGeometry(Part.LineSegment(V(590, 51, 0), V(570, 51, 0)), False)
sketch20.addConstraint(Sketcher.Constraint("Coincident", 0, 2, 1, 1))
sketch20.addConstraint(Sketcher.Constraint("Coincident", 1, 2, 2, 1))
sketch20.addConstraint(Sketcher.Constraint("Coincident", 2, 2, 3, 1))
sketch20.addConstraint(Sketcher.Constraint("Coincident", 3, 2, 0, 1))
sketch20.addConstraint(Sketcher.Constraint("Vertical", 0))
sketch20.addConstraint(Sketcher.Constraint("Horizontal", 1))
sketch20.addConstraint(Sketcher.Constraint("Vertical", 2))
sketch20.addConstraint(Sketcher.Constraint("Horizontal", 3))
sketch20.addConstraint(Sketcher.Constraint("DistanceX", 1, 1, 1, 2, 20.0))
sketch20.addConstraint(Sketcher.Constraint("DistanceY", 0, 2, 0, 1, 40.0))
sketch20.addConstraint(Sketcher.Constraint("DistanceX", -1, 1, 0, 2, 570.0))
sketch20.addConstraint(Sketcher.Constraint("DistanceY", -1, 1, 0, 2, 11.0))
sketch20.setExpression("Constraints[8]", "Params.sketch20_width")
sketch20.setExpression("Constraints[9]", "Params.sketch20_height")
pad20 = body26.newObject("PartDesign::Pad", "Pad019")
pad20.Profile = sketch20
pad20.setExpression("Length", "Params.pad20_length")
body27 = doc.addObject("PartDesign::Body", "Body026")
body27.AllowCompound = True

# Sketch on XY plane
sketch21 = body27.newObject("Sketcher::SketchObject", "Sketch020")
sketch21.AttachmentSupport = (doc.getObject("XY_Plane026"), [""])
sketch21.MapMode = "FlatFace"
sketch21.AttachmentOffset = App.Placement(V(0, 0, 18.5), App.Rotation())
sketch21.addGeometry(Part.LineSegment(V(565, 61, 0), V(565, 51, 0)), False)
sketch21.addGeometry(Part.LineSegment(V(565, 51, 0), V(600, 51, 0)), False)
sketch21.addGeometry(Part.LineSegment(V(600, 51, 0), V(600, 61, 0)), False)
sketch21.addGeometry(Part.LineSegment(V(600, 61, 0), V(565, 61, 0)), False)
sketch21.addConstraint(Sketcher.Constraint("Coincident", 0, 2, 1, 1))
sketch21.addConstraint(Sketcher.Constraint("Coincident", 1, 2, 2, 1))
sketch21.addConstraint(Sketcher.Constraint("Coincident", 2, 2, 3, 1))
sketch21.addConstraint(Sketcher.Constraint("Coincident", 3, 2, 0, 1))
sketch21.addConstraint(Sketcher.Constraint("Vertical", 0))
sketch21.addConstraint(Sketcher.Constraint("Horizontal", 1))
sketch21.addConstraint(Sketcher.Constraint("Vertical", 2))
sketch21.addConstraint(Sketcher.Constraint("Horizontal", 3))
sketch21.addConstraint(Sketcher.Constraint("DistanceX", 1, 1, 1, 2, 35.0))
sketch21.addConstraint(Sketcher.Constraint("DistanceY", 0, 2, 0, 1, 10.0))
sketch21.addConstraint(Sketcher.Constraint("DistanceX", -1, 1, 0, 2, 565.0))
sketch21.addConstraint(Sketcher.Constraint("DistanceY", -1, 1, 0, 2, 51.0))
sketch21.setExpression("Constraints[8]", "Params.sketch21_width")
sketch21.setExpression("Constraints[9]", "Params.sketch21_height")
pad21 = body27.newObject("PartDesign::Pad", "Pad020")
pad21.Profile = sketch21
pad21.setExpression("Length", "Params.pad21_length")
doc.recompute()

boolean17 = body27.newObject("PartDesign::Boolean", "Boolean016")
boolean17.Type = "Fuse"
boolean17.addObjects([body23])
doc.recompute()

boolean18 = body27.newObject("PartDesign::Boolean", "Boolean017")
boolean18.Type = "Fuse"
boolean18.addObjects([body24])
doc.recompute()

boolean19 = body27.newObject("PartDesign::Boolean", "Boolean018")
boolean19.Type = "Fuse"
boolean19.addObjects([body25])
doc.recompute()

boolean20 = body27.newObject("PartDesign::Boolean", "Boolean019")
boolean20.Type = "Fuse"
boolean20.addObjects([body26])
doc.recompute()

boolean21 = body27.newObject("PartDesign::Boolean", "Boolean020")
boolean21.Type = "Cut"
boolean21.addObjects([body22])
doc.recompute()

boolean22 = body27.newObject("PartDesign::Boolean", "Boolean021")
boolean22.Type = "Cut"
boolean22.addObjects([body20])
doc.recompute()

boolean23 = body27.newObject("PartDesign::Boolean", "Boolean022")
boolean23.Type = "Cut"
boolean23.addObjects([body15])
doc.recompute()

fillet = body27.newObject("PartDesign::Fillet", "Fillet")
fillet.Base = (boolean23, edges_at(boolean23, [
    (582.366, 71, 1.5),
    (581.921, 71, 18.5),
    (582.366, -9, 1.5),
    (581.921, -9, 18.5),
]))
fillet.setExpression("Radius", "Params.fillet_radius")
doc.recompute()

chamfer = body27.newObject("PartDesign::Chamfer", "Chamfer")
chamfer.Base = (fillet, edges_at(fillet, [
    (570, 51, 10.75),
    (590, 51, 10.75),
    (570, 11, 10.75),
    (590, 11, 10.75),
]))
chamfer.setExpression("Size", "Params.chamfer_size")
doc.recompute()

boolean24 = body27.newObject("PartDesign::Boolean", "Boolean023")
boolean24.Type = "Cut"
boolean24.addObjects([body9])
doc.recompute()

boolean25 = body27.newObject("PartDesign::Boolean", "Boolean024")
boolean25.Type = "Cut"
boolean25.addObjects([body3])
doc.recompute()

boolean26 = body27.newObject("PartDesign::Boolean", "Boolean025")
boolean26.Type = "Cut"
boolean26.addObjects([body])

doc.recompute()
